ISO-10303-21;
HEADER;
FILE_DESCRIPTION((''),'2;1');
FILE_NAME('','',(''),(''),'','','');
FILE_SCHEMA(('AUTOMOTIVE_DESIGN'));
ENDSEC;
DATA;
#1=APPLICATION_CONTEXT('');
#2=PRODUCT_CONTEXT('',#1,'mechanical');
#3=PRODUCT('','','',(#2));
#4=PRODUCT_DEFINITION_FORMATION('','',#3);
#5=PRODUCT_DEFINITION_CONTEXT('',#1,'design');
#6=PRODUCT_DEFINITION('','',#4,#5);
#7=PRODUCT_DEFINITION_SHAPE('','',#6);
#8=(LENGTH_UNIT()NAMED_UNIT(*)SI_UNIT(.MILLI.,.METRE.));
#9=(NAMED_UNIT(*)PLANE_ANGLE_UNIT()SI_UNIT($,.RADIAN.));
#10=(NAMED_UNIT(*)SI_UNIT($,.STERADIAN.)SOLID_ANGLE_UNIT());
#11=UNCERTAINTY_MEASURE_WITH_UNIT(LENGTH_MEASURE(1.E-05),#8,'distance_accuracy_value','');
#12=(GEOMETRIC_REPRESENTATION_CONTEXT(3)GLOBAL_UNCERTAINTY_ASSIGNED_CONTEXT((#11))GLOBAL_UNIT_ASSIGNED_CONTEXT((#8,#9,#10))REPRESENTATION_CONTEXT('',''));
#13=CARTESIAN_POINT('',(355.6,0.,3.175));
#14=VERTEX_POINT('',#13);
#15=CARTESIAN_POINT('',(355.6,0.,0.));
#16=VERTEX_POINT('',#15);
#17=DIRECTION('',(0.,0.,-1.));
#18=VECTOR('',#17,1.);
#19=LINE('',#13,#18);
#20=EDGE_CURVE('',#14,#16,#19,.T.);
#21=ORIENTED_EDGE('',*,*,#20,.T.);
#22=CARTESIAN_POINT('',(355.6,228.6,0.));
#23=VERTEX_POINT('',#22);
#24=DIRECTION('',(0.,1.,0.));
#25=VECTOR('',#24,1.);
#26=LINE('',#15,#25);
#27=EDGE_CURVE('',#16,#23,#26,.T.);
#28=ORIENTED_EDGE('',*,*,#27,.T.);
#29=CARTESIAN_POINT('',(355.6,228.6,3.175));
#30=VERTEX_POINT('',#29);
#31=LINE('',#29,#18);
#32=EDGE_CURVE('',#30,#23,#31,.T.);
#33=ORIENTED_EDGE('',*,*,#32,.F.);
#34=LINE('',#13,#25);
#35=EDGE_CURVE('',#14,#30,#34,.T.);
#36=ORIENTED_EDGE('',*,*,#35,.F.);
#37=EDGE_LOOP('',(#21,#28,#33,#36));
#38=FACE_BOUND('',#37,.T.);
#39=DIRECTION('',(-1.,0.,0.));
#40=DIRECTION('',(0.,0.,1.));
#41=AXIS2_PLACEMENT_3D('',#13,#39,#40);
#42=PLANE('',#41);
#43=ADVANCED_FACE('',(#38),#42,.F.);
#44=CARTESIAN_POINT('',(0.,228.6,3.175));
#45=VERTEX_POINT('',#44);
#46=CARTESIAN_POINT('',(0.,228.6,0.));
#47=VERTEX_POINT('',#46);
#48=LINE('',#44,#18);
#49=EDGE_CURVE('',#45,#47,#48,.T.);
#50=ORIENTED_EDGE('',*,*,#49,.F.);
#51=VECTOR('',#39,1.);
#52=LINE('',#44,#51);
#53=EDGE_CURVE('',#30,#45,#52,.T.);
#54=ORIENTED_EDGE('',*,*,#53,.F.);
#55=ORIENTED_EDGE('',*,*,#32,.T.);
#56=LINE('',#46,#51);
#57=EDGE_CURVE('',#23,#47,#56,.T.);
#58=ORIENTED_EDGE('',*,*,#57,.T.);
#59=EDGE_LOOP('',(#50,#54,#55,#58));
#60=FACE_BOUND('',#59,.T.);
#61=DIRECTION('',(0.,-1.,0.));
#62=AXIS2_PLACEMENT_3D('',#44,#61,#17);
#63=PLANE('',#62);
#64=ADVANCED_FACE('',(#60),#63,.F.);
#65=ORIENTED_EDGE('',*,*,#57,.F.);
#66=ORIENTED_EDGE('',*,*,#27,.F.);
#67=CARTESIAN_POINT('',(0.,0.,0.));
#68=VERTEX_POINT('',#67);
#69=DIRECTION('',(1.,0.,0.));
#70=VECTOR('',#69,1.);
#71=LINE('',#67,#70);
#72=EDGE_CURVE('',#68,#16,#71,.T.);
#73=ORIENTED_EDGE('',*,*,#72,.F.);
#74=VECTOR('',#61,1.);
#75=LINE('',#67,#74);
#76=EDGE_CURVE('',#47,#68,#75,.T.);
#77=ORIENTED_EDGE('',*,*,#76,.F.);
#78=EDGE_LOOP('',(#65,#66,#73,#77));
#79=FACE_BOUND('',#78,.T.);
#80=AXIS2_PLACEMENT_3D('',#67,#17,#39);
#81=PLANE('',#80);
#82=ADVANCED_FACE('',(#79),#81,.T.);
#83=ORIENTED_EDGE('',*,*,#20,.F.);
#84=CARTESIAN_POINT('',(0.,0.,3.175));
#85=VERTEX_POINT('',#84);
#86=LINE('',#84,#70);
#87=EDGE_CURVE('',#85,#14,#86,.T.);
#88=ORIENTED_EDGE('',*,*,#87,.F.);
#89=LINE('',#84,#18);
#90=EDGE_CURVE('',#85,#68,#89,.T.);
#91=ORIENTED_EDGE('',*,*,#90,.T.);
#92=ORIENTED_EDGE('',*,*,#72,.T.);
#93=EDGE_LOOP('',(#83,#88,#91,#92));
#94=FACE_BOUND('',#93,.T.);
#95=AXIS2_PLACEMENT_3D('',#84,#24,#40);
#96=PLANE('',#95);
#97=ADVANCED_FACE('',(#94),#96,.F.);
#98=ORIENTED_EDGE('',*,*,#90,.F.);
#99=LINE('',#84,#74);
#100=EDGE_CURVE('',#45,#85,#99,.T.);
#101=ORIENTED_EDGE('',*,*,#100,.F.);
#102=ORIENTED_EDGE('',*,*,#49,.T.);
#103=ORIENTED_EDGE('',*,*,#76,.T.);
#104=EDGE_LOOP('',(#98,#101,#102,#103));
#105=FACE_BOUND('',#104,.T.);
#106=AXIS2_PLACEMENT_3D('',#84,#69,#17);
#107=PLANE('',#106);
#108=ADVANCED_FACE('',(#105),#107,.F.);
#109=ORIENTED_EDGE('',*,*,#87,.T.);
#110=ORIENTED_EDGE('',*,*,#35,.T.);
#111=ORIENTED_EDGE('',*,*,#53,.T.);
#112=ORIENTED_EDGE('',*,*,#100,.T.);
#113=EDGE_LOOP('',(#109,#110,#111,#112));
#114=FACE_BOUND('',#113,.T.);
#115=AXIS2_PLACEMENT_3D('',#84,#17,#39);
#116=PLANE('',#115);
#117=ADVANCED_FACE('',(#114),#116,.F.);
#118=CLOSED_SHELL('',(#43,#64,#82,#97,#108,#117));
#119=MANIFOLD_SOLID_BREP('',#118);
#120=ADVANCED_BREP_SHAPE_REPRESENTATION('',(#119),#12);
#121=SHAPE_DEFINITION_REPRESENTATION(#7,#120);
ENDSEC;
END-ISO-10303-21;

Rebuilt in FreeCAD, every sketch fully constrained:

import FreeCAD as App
import Part
import Sketcher
from FreeCAD import Vector
Q = App.Units.Quantity


def add_polygon(sketch, points):
    """Adds a closed chain of lines whose ends are joined by coincident constraints."""
    first, n = sketch.GeometryCount, len(points)
    for a, b in zip(points, points[1:] + points[:1]):
        sketch.addGeometry(Part.LineSegment(App.Vector(*a, 0), App.Vector(*b, 0)), False)
    for i in range(n):
        sketch.addConstraint(Sketcher.Constraint("Coincident", first + i, 2, first + (i + 1) % n, 1))

doc = App.newDocument("Part")
body = doc.addObject("PartDesign::Body", "Body")

# Sketch on XY plane
sketch1 = doc.addObject("Sketcher::SketchObject", "Sketch")
body.addObject(sketch1)
sketch1.AttachmentSupport = (doc.XY_Plane, [""])
sketch1.MapMode = "FlatFace"
add_polygon(sketch1, [(0, 229), (0, 0), (356, 0), (356, 229)])  # lines 0-3
sketch1.addConstraint([
    Sketcher.Constraint("Vertical", 0),
    Sketcher.Constraint("Horizontal", 1),
    Sketcher.Constraint("Vertical", 2),
    Sketcher.Constraint("Horizontal", 3),
    Sketcher.Constraint("Coincident", 0, 2, -1, 1),
    Sketcher.Constraint("DistanceX", 1, 1, 1, 2, Q("14 in")),
    Sketcher.Constraint("DistanceY", 0, 2, 0, 1, Q("9 in")),
])
pad1 = doc.addObject("PartDesign::Pad", "Pad")
body.addObject(pad1)
pad1.Profile = sketch1
pad1.Length = Q("0.125 in")

doc.recompute()
